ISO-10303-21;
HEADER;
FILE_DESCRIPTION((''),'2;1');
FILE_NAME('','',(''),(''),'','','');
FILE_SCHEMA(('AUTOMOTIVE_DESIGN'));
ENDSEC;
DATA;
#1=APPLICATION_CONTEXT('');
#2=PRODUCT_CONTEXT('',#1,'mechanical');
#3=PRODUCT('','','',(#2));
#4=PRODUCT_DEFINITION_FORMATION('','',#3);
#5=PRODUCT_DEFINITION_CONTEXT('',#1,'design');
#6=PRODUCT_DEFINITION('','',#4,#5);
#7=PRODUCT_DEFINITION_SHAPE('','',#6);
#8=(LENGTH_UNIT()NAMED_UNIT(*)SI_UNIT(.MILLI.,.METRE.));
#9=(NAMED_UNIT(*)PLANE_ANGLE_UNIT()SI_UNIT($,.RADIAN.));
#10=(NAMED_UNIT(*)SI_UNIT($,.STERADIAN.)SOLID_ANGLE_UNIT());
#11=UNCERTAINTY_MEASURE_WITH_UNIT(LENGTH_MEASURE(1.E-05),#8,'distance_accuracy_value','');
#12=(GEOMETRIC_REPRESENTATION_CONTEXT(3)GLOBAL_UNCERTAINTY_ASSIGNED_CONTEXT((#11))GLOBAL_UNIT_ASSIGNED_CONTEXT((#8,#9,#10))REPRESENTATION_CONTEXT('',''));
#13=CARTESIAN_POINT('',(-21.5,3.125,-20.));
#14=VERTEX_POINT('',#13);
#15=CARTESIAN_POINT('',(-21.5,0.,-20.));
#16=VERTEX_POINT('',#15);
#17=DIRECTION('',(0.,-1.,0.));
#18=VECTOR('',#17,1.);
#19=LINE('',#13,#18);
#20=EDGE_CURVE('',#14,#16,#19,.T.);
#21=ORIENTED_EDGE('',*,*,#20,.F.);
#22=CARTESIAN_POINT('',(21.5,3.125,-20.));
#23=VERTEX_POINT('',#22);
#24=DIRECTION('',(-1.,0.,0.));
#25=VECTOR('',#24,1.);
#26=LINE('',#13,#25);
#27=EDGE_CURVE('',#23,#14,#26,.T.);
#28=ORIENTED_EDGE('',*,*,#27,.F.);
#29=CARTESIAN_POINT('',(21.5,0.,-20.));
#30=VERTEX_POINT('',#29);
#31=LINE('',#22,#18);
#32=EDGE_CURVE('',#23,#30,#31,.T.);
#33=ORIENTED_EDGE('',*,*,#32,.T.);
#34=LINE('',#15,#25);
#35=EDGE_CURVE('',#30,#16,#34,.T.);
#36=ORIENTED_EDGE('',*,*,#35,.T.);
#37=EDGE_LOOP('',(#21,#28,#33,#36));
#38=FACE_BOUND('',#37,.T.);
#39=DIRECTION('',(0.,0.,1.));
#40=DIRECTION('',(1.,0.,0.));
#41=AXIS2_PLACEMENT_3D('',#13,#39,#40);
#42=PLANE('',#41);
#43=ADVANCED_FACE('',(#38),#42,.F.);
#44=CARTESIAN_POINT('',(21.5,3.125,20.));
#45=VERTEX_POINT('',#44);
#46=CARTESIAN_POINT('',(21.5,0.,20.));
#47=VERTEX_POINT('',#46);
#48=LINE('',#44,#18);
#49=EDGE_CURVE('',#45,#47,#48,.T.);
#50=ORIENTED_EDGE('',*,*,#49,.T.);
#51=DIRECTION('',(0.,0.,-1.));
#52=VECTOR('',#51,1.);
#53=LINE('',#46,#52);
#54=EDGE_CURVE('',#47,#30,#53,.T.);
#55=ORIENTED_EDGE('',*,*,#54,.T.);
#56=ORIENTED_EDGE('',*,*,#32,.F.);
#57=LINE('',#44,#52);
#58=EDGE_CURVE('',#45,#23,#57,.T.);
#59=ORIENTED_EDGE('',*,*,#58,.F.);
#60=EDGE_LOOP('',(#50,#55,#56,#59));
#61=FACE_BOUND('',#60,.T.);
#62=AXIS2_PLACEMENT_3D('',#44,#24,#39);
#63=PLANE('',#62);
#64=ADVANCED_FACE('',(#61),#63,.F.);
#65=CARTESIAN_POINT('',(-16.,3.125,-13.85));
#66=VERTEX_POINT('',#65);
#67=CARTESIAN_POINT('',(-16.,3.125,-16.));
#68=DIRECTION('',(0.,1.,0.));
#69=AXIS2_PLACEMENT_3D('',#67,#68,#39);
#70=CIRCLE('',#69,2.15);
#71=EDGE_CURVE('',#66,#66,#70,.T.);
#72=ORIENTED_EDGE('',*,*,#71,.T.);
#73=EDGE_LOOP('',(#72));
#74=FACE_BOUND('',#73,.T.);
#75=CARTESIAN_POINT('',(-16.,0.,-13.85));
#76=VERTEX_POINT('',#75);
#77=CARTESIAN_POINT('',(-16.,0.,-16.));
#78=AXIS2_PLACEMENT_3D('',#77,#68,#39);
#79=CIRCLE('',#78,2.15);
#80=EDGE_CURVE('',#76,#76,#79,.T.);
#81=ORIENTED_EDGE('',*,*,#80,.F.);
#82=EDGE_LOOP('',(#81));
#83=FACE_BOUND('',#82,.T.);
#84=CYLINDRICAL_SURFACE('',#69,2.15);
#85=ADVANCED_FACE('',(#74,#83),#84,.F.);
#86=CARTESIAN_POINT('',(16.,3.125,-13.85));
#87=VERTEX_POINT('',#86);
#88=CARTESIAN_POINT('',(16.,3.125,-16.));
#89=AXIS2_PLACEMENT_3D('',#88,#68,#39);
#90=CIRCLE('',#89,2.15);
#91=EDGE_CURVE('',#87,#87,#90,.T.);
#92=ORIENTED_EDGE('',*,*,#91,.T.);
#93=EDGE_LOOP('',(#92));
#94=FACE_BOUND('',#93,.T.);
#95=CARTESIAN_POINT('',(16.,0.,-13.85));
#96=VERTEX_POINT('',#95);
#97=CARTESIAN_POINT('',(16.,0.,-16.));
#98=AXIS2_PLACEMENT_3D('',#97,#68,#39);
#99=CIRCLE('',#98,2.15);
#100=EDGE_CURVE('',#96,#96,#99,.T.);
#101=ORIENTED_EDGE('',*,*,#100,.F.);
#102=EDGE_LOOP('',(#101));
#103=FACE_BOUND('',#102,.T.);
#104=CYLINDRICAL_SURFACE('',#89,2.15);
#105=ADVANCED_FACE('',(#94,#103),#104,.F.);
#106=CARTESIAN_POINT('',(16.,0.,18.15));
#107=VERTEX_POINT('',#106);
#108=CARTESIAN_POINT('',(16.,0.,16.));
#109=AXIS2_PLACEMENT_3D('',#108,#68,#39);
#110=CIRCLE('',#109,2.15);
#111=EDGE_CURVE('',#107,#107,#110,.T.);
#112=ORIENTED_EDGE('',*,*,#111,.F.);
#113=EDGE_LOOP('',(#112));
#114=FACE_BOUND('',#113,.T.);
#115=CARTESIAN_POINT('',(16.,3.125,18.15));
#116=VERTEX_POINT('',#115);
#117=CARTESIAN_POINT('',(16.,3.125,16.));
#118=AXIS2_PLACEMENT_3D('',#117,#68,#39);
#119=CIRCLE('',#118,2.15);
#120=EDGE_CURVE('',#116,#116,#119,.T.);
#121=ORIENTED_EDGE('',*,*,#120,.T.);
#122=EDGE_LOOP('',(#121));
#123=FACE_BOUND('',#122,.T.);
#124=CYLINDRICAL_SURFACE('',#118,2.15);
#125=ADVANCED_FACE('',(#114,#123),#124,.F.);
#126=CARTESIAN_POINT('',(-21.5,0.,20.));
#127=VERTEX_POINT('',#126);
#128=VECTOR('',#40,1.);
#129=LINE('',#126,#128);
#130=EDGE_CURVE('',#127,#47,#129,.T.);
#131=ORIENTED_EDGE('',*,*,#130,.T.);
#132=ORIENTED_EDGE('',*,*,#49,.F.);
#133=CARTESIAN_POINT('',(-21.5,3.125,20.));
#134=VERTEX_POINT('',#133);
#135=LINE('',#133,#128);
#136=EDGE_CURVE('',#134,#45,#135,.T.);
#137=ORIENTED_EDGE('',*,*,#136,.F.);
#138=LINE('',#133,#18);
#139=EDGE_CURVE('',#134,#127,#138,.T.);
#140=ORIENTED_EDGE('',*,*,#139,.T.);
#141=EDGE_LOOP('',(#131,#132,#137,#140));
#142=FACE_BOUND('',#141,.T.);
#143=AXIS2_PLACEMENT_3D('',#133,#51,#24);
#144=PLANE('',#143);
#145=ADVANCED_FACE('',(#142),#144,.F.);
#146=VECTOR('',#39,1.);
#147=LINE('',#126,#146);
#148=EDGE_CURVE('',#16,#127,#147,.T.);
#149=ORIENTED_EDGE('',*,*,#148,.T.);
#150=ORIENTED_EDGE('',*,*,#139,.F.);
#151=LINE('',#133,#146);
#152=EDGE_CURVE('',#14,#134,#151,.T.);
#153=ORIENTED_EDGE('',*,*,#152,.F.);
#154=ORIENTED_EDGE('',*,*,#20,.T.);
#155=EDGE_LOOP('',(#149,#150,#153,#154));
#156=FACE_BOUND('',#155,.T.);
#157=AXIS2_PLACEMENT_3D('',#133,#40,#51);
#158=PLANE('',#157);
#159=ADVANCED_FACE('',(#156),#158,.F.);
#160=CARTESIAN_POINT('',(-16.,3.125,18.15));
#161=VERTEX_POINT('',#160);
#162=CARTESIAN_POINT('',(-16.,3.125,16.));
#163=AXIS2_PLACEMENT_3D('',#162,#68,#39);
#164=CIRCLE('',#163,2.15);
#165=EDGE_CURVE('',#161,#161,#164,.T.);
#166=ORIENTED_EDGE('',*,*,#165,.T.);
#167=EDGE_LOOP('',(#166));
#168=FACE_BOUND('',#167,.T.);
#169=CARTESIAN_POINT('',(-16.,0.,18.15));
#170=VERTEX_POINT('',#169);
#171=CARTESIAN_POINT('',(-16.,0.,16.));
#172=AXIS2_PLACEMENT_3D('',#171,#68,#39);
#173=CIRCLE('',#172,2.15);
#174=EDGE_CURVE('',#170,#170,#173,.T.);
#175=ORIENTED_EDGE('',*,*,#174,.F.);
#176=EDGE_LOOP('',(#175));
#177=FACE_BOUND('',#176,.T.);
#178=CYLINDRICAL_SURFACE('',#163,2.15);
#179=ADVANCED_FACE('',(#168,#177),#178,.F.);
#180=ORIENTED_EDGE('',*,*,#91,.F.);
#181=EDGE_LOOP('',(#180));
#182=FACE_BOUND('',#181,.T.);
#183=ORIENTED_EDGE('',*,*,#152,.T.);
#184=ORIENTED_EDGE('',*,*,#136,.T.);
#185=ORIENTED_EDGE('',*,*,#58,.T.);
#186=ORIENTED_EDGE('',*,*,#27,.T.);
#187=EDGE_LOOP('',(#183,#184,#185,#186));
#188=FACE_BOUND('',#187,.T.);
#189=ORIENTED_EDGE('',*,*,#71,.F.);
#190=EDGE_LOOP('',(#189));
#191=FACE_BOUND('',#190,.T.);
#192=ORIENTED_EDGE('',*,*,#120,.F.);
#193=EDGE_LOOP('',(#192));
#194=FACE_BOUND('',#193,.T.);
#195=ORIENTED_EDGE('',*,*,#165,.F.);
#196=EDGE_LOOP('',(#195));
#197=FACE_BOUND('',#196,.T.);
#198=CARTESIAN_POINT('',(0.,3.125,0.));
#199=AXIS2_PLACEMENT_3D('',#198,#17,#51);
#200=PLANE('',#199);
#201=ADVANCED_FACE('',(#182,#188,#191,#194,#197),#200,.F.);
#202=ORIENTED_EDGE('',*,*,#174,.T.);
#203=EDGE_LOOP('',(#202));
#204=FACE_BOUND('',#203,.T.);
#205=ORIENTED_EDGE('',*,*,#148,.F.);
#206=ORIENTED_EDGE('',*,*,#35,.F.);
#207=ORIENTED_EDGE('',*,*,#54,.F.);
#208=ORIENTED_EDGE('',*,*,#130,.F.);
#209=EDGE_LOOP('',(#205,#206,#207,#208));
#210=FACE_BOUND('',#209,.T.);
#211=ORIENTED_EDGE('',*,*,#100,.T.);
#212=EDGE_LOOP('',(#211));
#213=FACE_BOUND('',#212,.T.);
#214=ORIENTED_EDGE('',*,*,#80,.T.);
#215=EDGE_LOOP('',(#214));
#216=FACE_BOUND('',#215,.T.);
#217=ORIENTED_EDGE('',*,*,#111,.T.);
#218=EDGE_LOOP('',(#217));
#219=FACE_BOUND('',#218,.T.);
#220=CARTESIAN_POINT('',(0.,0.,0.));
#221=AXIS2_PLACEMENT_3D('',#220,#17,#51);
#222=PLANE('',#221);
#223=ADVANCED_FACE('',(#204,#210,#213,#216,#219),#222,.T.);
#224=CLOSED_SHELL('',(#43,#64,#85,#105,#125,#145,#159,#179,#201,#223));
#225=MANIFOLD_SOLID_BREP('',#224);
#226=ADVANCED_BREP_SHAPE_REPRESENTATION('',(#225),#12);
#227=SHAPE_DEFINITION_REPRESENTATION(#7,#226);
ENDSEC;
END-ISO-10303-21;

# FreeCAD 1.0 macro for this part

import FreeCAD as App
import Part
import Sketcher


def add_polygon(sketch, points):
    """Adds a closed chain of lines whose ends are joined by coincident constraints."""
    first, n = sketch.GeometryCount, len(points)
    for a, b in zip(points, points[1:] + points[:1]):
        sketch.addGeometry(Part.LineSegment(App.Vector(*a, 0), App.Vector(*b, 0)), False)
    for i in range(n):
        sketch.addConstraint(Sketcher.Constraint("Coincident", first + i, 2, first + (i + 1) % n, 1))

doc = App.newDocument("Part")
body = doc.addObject("PartDesign::Body", "Body")

# Sketch on XZ plane
sketch1 = body.newObject("Sketcher::SketchObject", "Sketch")
sketch1.AttachmentSupport = (doc.getObject("XZ_Plane"), [""])
sketch1.MapMode = "FlatFace"
add_polygon(sketch1, [(-21.5, -20), (-21.5, 20), (21.5, 20), (21.5, -20)])  # lines 0-3
sketch1.addConstraint([
    Sketcher.Constraint("Vertical", 0),
    Sketcher.Constraint("Horizontal", 1),
    Sketcher.Constraint("Vertical", 2),
    Sketcher.Constraint("Horizontal", 3),
    Sketcher.Constraint("Symmetric", 0, 2, 2, 2, -1, 1),
    Sketcher.Constraint("DistanceX", 1, 1, 1, 2, 43.0),
    Sketcher.Constraint("DistanceY", 0, 1, 0, 2, 40.0),
])
pad1 = body.newObject("PartDesign::Pad", "Pad")
pad1.Profile = sketch1
pad1.Length = 3.125
pad1.Reversed = True

# Sketch on XZ plane
sketch2 = body.newObject("Sketcher::SketchObject", "Sketch001")
sketch2.AttachmentSupport = (doc.getObject("XZ_Plane"), [""])
sketch2.MapMode = "FlatFace"
sketch2.AttachmentOffset = App.Placement(App.Vector(0, 0, -3.125), App.Rotation())
sketch2.addGeometry([
    Part.Circle(App.Vector(-16, -16, 0), App.Vector(0, 0, 1), 2.15),
    Part.Circle(App.Vector(16, -16, 0), App.Vector(0, 0, 1), 2.15),
    Part.Circle(App.Vector(16, 16, 0), App.Vector(0, 0, 1), 2.15),
    Part.Circle(App.Vector(-16, 16, 0), App.Vector(0, 0, 1), 2.15),
], False)
sketch2.addConstraint([
    Sketcher.Constraint("Equal", 0, 1),
    Sketcher.Constraint("Equal", 1, 2),
    Sketcher.Constraint("Equal", 2, 3),
    Sketcher.Constraint("Symmetric", 0, 3, 2, 3, -1, 1),
    Sketcher.Constraint("Symmetric", 1, 3, 3, 3, -1, 1),
    Sketcher.Constraint("Symmetric", 0, 3, 1, 3, -2),
    Sketcher.Constraint("Diameter", 0, 4.3),
    Sketcher.Constraint("DistanceX", 0, 3, -1, 1, 16.0),
    Sketcher.Constraint("DistanceY", 0, 3, -1, 1, 16.0),
])
doc.recompute()
hole = body.newObject("PartDesign::Hole", "Hole")
hole.Profile = sketch2
hole.ThreadType = "None"
hole.Diameter = 4.3
hole.DepthType = "ThroughAll"
hole.Reversed = True

doc.recompute()
